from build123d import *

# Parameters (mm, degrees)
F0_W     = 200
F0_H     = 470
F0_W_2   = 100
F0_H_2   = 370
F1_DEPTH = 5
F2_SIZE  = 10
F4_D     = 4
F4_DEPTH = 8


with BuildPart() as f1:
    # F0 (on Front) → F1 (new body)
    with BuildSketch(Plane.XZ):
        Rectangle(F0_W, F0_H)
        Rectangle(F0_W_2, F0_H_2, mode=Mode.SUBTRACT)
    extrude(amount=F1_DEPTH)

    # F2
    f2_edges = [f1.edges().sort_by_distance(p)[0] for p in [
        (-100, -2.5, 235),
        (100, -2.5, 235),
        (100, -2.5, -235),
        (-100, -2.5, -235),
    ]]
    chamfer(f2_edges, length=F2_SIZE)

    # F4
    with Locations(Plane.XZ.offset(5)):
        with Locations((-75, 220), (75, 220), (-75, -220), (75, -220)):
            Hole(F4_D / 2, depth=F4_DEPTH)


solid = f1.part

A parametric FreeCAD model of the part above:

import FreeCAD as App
import Part
import Sketcher
from FreeCAD import Vector
Q = App.Units.Quantity


def edges_at(feature, points):
    """Names of the edges that pass closest to the given points."""
    edges = feature.Shape.Edges
    near = lambda p: min(range(len(edges)), key=lambda i: edges[i].distToShape(Part.Vertex(*p))[0])
    return sorted({f"Edge{near(p) + 1}" for p in points})

doc = App.newDocument("Part")
params = doc.addObject("Spreadsheet::Sheet", "Params")
for row, (alias, value) in enumerate([
    ("sketch1_width", "200 mm"),
    ("sketch1_width2", "100 mm"),
    ("sketch1_height", "470 mm"),
    ("sketch1_height2", "370 mm"),
    ("pad1_length", "5 mm"),
    ("chamfer_size", "10 mm"),
    ("sketch2_diameter", "4 mm"),
    ("hole_diameter", "4 mm"),
    ("hole_depth", "8 mm"),
], start=1):
    params.set(f"A{row}", alias)
    params.set(f"B{row}", "=" + value)
    params.setAlias(f"B{row}", alias)

body = doc.addObject("PartDesign::Body", "Body")

# Sketch on XZ plane
sketch1 = body.newObject("Sketcher::SketchObject", "Sketch")
sketch1.AttachmentSupport = (doc.getObject("XZ_Plane"), [""])
sketch1.MapMode = "FlatFace"
sketch1.addGeometry(Part.LineSegment(Vector(-100, 235, 0), Vector(-100, -235, 0)), False)
sketch1.addGeometry(Part.LineSegment(Vector(-100, -235, 0), Vector(100, -235, 0)), False)
sketch1.addGeometry(Part.LineSegment(Vector(100, -235, 0), Vector(100, 235, 0)), False)
sketch1.addGeometry(Part.LineSegment(Vector(100, 235, 0), Vector(-100, 235, 0)), False)
sketch1.addGeometry(Part.LineSegment(Vector(50, -185, 0), Vector(-50, -185, 0)), False)
sketch1.addGeometry(Part.LineSegment(Vector(-50, -185, 0), Vector(-50, 185, 0)), False)
sketch1.addGeometry(Part.LineSegment(Vector(-50, 185, 0), Vector(50, 185, 0)), False)
sketch1.addGeometry(Part.LineSegment(Vector(50, 185, 0), Vector(50, -185, 0)), False)
sketch1.addConstraint(Sketcher.Constraint("Coincident", 0, 2, 1, 1))
sketch1.addConstraint(Sketcher.Constraint("Coincident", 1, 2, 2, 1))
sketch1.addConstraint(Sketcher.Constraint("Coincident", 2, 2, 3, 1))
sketch1.addConstraint(Sketcher.Constraint("Coincident", 3, 2, 0, 1))
sketch1.addConstraint(Sketcher.Constraint("Coincident", 4, 2, 5, 1))
sketch1.addConstraint(Sketcher.Constraint("Coincident", 5, 2, 6, 1))
sketch1.addConstraint(Sketcher.Constraint("Coincident", 6, 2, 7, 1))
sketch1.addConstraint(Sketcher.Constraint("Coincident", 7, 2, 4, 1))
sketch1.addConstraint(Sketcher.Constraint("Vertical", 0))
sketch1.addConstraint(Sketcher.Constraint("Horizontal", 1))
sketch1.addConstraint(Sketcher.Constraint("Vertical", 2))
sketch1.addConstraint(Sketcher.Constraint("Horizontal", 3))
sketch1.addConstraint(Sketcher.Constraint("Horizontal", 4))
sketch1.addConstraint(Sketcher.Constraint("Vertical", 5))
sketch1.addConstraint(Sketcher.Constraint("Horizontal", 6))
sketch1.addConstraint(Sketcher.Constraint("Vertical", 7))
sketch1.addConstraint(Sketcher.Constraint("Symmetric", 0, 2, 2, 2, -1, 1))
sketch1.addConstraint(Sketcher.Constraint("Symmetric", 4, 2, 6, 2, -1, 1))
sketch1.addConstraint(Sketcher.Constraint("DistanceX", 1, 1, 1, 2, Q("200 mm")))
sketch1.addConstraint(Sketcher.Constraint("DistanceX", 4, 2, 4, 1, Q("100 mm")))
sketch1.addConstraint(Sketcher.Constraint("DistanceY", 0, 2, 0, 1, Q("470 mm")))
sketch1.addConstraint(Sketcher.Constraint("DistanceY", 5, 1, 5, 2, Q("370 mm")))
sketch1.setExpression("Constraints[18]", "Params.sketch1_width")
sketch1.setExpression("Constraints[19]", "Params.sketch1_width2")
sketch1.setExpression("Constraints[20]", "Params.sketch1_height")
sketch1.setExpression("Constraints[21]", "Params.sketch1_height2")
pad1 = body.newObject("PartDesign::Pad", "Pad")
pad1.Profile = sketch1
pad1.setExpression("Length", "Params.pad1_length")
doc.recompute()

chamfer = body.newObject("PartDesign::Chamfer", "Chamfer")
chamfer.Base = (pad1, edges_at(pad1, [
    (-100, -2.5, 235),
    (100, -2.5, 235),
    (100, -2.5, -235),
    (-100, -2.5, -235),
]))
chamfer.setExpression("Size", "Params.chamfer_size")

# Sketch on XZ plane
sketch2 = body.newObject("Sketcher::SketchObject", "Sketch001")
sketch2.AttachmentSupport = (doc.getObject("XZ_Plane"), [""])
sketch2.MapMode = "FlatFace"
sketch2.AttachmentOffset = App.Placement(Vector(0, 0, 5), App.Rotation())
sketch2.addGeometry(Part.Circle(Vector(-75, 220, 0), Vector(0, 0, 1), 2), False)
sketch2.addGeometry(Part.Circle(Vector(75, 220, 0), Vector(0, 0, 1), 2), False)
sketch2.addGeometry(Part.Circle(Vector(-75, -220, 0), Vector(0, 0, 1), 2), False)
sketch2.addGeometry(Part.Circle(Vector(75, -220, 0), Vector(0, 0, 1), 2), False)
sketch2.addConstraint(Sketcher.Constraint("Equal", 0, 1))
sketch2.addConstraint(Sketcher.Constraint("Equal", 1, 2))
sketch2.addConstraint(Sketcher.Constraint("Equal", 2, 3))
sketch2.addConstraint(Sketcher.Constraint("Symmetric", 1, 3, 2, 3, -1, 1))
sketch2.addConstraint(Sketcher.Constraint("Symmetric", 0, 3, 3, 3, -1, 1))
sketch2.addConstraint(Sketcher.Constraint("Symmetric", 0, 3, 1, 3, -2))
sketch2.addConstraint(Sketcher.Constraint("Diameter", 0, Q("4 mm")))
sketch2.addConstraint(Sketcher.Constraint("DistanceX", 0, 3, -1, 1, Q("75 mm")))
sketch2.addConstraint(Sketcher.Constraint("DistanceY", -1, 1, 0, 3, Q("220 mm")))
sketch2.setExpression("Constraints[6]", "Params.sketch2_diameter")
doc.recompute()
hole = body.newObject("PartDesign::Hole", "Hole")
hole.Profile = sketch2
hole.ThreadType = "None"
hole.setExpression("Diameter", "Params.hole_diameter")
hole.DepthType = "Dimension"
hole.setExpression("Depth", "Params.hole_depth")
hole.DrillPoint = "Flat"

doc.recompute()
